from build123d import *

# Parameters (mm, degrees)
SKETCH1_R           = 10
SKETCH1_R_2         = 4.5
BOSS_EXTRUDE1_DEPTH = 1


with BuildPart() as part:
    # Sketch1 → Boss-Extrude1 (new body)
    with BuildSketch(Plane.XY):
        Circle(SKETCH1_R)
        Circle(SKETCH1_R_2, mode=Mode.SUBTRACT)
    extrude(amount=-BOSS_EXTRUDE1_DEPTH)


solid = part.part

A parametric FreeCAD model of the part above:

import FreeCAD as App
import Part
import Sketcher

doc = App.newDocument("Part")
body = doc.addObject("PartDesign::Body", "Body")

# Sketch on XY plane
sketch1 = body.newObject("Sketcher::SketchObject", "Sketch")
sketch1.AttachmentSupport = (doc.getObject("XY_Plane"), [""])
sketch1.MapMode = "FlatFace"
sketch1.addGeometry(Part.Circle(App.Vector(0, 0, 0), App.Vector(0, 0, 1), 10), False)
sketch1.addGeometry(Part.Circle(App.Vector(0, 0, 0), App.Vector(0, 0, 1), 4.5), False)
sketch1.addConstraint(Sketcher.Constraint("Coincident", 0, 3, -1, 1))
sketch1.addConstraint(Sketcher.Constraint("Coincident", 1, 3, -1, 1))
sketch1.addConstraint(Sketcher.Constraint("Diameter", 0, 20.0))
sketch1.addConstraint(Sketcher.Constraint("Diameter", 1, 9.0))
pad1 = body.newObject("PartDesign::Pad", "Pad")
pad1.Profile = sketch1
pad1.Length = 1
pad1.Reversed = True

doc.recompute()
